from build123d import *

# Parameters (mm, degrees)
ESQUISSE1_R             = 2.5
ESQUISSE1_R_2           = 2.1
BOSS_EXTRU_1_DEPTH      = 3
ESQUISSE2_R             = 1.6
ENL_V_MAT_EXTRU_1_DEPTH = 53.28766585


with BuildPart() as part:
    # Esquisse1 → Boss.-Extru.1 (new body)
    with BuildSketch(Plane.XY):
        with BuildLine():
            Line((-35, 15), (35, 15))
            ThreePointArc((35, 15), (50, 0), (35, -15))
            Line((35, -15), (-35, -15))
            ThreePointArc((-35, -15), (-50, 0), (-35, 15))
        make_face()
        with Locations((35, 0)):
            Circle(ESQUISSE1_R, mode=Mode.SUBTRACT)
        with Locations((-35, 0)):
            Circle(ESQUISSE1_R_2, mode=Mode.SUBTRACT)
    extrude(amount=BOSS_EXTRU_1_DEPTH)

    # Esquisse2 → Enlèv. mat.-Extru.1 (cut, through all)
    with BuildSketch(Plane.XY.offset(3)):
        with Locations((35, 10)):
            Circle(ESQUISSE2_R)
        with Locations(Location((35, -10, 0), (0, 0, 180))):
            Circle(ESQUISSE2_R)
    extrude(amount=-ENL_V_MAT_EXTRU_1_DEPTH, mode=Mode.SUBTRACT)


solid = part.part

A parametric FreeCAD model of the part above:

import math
import FreeCAD as App
import Part
import Sketcher
from FreeCAD import Vector
Q = App.Units.Quantity

doc = App.newDocument("Part")
body = doc.addObject("PartDesign::Body", "Body")

sketch1 = body.newObject("Sketcher::SketchObject", "Sketch")
sketch1.AttachmentSupport = (doc.getObject("XY_Plane"), [""])
sketch1.MapMode = "FlatFace"
sketch1.addGeometry(Part.LineSegment(Vector(35, 15, 0), Vector(-35, 15, 0)), False)
sketch1.addGeometry(Part.ArcOfCircle(Part.Circle(Vector(-35, 0, 0), Vector(0, 0, 1), 15), math.radians(90), math.radians(270)), False)
sketch1.addGeometry(Part.LineSegment(Vector(-35, -15, 0), Vector(35, -15, 0)), False)
sketch1.addGeometry(Part.ArcOfCircle(Part.Circle(Vector(35, 0, 0), Vector(0, 0, 1), 15), math.radians(-90), math.radians(90)), False)
sketch1.addGeometry(Part.Circle(Vector(35, 0, 0), Vector(0, 0, 1), 2.5), False)
sketch1.addGeometry(Part.Circle(Vector(-35, 0, 0), Vector(0, 0, 1), 2.1), False)
sketch1.addConstraint(Sketcher.Constraint("Tangent", 0, 2, 1, 1))
sketch1.addConstraint(Sketcher.Constraint("Tangent", 1, 2, 2, 1))
sketch1.addConstraint(Sketcher.Constraint("Tangent", 2, 2, 3, 1))
sketch1.addConstraint(Sketcher.Constraint("Tangent", 3, 2, 0, 1))
sketch1.addConstraint(Sketcher.Constraint("Horizontal", 0))
sketch1.addConstraint(Sketcher.Constraint("Horizontal", 2))
sketch1.addConstraint(Sketcher.Constraint("Coincident", 4, 3, 3, 3))
sketch1.addConstraint(Sketcher.Constraint("Coincident", 5, 3, 1, 3))
sketch1.addConstraint(Sketcher.Constraint("Symmetric", 1, 3, 3, 3, -1, 1))
sketch1.addConstraint(Sketcher.Constraint("Diameter", 4, Q("5 mm")))
sketch1.addConstraint(Sketcher.Constraint("Radius", 1, Q("15 mm")))
sketch1.addConstraint(Sketcher.Constraint("Diameter", 5, Q("4.2 mm")))
sketch1.addConstraint(Sketcher.Constraint("DistanceX", 0, 2, 0, 1, Q("70 mm")))
pad1 = body.newObject("PartDesign::Pad", "Pad")
pad1.Profile = sketch1
pad1.Length = 3

sketch2 = body.newObject("Sketcher::SketchObject", "Sketch001")
sketch2.AttachmentSupport = (doc.getObject("XY_Plane"), [""])
sketch2.MapMode = "FlatFace"
sketch2.AttachmentOffset = App.Placement(Vector(0, 0, 3), App.Rotation())
sketch2.addGeometry(Part.Circle(Vector(35, 10, 0), Vector(0, 0, 1), 1.6), False)
sketch2.addGeometry(Part.Circle(Vector(35, -10, 0), Vector(0, 0, 1), 1.6), False)
sketch2.addConstraint(Sketcher.Constraint("Equal", 0, 1))
sketch2.addConstraint(Sketcher.Constraint("Symmetric", 0, 3, 1, 3, -1))
sketch2.addConstraint(Sketcher.Constraint("Diameter", 0, Q("3.2 mm")))
sketch2.addConstraint(Sketcher.Constraint("DistanceX", -1, 1, 0, 3, Q("35 mm")))
sketch2.addConstraint(Sketcher.Constraint("DistanceY", -1, 1, 0, 3, Q("10 mm")))
pocket1 = body.newObject("PartDesign::Pocket", "Pocket")
pocket1.Profile = sketch2
pocket1.Type = "ThroughAll"

doc.recompute()
